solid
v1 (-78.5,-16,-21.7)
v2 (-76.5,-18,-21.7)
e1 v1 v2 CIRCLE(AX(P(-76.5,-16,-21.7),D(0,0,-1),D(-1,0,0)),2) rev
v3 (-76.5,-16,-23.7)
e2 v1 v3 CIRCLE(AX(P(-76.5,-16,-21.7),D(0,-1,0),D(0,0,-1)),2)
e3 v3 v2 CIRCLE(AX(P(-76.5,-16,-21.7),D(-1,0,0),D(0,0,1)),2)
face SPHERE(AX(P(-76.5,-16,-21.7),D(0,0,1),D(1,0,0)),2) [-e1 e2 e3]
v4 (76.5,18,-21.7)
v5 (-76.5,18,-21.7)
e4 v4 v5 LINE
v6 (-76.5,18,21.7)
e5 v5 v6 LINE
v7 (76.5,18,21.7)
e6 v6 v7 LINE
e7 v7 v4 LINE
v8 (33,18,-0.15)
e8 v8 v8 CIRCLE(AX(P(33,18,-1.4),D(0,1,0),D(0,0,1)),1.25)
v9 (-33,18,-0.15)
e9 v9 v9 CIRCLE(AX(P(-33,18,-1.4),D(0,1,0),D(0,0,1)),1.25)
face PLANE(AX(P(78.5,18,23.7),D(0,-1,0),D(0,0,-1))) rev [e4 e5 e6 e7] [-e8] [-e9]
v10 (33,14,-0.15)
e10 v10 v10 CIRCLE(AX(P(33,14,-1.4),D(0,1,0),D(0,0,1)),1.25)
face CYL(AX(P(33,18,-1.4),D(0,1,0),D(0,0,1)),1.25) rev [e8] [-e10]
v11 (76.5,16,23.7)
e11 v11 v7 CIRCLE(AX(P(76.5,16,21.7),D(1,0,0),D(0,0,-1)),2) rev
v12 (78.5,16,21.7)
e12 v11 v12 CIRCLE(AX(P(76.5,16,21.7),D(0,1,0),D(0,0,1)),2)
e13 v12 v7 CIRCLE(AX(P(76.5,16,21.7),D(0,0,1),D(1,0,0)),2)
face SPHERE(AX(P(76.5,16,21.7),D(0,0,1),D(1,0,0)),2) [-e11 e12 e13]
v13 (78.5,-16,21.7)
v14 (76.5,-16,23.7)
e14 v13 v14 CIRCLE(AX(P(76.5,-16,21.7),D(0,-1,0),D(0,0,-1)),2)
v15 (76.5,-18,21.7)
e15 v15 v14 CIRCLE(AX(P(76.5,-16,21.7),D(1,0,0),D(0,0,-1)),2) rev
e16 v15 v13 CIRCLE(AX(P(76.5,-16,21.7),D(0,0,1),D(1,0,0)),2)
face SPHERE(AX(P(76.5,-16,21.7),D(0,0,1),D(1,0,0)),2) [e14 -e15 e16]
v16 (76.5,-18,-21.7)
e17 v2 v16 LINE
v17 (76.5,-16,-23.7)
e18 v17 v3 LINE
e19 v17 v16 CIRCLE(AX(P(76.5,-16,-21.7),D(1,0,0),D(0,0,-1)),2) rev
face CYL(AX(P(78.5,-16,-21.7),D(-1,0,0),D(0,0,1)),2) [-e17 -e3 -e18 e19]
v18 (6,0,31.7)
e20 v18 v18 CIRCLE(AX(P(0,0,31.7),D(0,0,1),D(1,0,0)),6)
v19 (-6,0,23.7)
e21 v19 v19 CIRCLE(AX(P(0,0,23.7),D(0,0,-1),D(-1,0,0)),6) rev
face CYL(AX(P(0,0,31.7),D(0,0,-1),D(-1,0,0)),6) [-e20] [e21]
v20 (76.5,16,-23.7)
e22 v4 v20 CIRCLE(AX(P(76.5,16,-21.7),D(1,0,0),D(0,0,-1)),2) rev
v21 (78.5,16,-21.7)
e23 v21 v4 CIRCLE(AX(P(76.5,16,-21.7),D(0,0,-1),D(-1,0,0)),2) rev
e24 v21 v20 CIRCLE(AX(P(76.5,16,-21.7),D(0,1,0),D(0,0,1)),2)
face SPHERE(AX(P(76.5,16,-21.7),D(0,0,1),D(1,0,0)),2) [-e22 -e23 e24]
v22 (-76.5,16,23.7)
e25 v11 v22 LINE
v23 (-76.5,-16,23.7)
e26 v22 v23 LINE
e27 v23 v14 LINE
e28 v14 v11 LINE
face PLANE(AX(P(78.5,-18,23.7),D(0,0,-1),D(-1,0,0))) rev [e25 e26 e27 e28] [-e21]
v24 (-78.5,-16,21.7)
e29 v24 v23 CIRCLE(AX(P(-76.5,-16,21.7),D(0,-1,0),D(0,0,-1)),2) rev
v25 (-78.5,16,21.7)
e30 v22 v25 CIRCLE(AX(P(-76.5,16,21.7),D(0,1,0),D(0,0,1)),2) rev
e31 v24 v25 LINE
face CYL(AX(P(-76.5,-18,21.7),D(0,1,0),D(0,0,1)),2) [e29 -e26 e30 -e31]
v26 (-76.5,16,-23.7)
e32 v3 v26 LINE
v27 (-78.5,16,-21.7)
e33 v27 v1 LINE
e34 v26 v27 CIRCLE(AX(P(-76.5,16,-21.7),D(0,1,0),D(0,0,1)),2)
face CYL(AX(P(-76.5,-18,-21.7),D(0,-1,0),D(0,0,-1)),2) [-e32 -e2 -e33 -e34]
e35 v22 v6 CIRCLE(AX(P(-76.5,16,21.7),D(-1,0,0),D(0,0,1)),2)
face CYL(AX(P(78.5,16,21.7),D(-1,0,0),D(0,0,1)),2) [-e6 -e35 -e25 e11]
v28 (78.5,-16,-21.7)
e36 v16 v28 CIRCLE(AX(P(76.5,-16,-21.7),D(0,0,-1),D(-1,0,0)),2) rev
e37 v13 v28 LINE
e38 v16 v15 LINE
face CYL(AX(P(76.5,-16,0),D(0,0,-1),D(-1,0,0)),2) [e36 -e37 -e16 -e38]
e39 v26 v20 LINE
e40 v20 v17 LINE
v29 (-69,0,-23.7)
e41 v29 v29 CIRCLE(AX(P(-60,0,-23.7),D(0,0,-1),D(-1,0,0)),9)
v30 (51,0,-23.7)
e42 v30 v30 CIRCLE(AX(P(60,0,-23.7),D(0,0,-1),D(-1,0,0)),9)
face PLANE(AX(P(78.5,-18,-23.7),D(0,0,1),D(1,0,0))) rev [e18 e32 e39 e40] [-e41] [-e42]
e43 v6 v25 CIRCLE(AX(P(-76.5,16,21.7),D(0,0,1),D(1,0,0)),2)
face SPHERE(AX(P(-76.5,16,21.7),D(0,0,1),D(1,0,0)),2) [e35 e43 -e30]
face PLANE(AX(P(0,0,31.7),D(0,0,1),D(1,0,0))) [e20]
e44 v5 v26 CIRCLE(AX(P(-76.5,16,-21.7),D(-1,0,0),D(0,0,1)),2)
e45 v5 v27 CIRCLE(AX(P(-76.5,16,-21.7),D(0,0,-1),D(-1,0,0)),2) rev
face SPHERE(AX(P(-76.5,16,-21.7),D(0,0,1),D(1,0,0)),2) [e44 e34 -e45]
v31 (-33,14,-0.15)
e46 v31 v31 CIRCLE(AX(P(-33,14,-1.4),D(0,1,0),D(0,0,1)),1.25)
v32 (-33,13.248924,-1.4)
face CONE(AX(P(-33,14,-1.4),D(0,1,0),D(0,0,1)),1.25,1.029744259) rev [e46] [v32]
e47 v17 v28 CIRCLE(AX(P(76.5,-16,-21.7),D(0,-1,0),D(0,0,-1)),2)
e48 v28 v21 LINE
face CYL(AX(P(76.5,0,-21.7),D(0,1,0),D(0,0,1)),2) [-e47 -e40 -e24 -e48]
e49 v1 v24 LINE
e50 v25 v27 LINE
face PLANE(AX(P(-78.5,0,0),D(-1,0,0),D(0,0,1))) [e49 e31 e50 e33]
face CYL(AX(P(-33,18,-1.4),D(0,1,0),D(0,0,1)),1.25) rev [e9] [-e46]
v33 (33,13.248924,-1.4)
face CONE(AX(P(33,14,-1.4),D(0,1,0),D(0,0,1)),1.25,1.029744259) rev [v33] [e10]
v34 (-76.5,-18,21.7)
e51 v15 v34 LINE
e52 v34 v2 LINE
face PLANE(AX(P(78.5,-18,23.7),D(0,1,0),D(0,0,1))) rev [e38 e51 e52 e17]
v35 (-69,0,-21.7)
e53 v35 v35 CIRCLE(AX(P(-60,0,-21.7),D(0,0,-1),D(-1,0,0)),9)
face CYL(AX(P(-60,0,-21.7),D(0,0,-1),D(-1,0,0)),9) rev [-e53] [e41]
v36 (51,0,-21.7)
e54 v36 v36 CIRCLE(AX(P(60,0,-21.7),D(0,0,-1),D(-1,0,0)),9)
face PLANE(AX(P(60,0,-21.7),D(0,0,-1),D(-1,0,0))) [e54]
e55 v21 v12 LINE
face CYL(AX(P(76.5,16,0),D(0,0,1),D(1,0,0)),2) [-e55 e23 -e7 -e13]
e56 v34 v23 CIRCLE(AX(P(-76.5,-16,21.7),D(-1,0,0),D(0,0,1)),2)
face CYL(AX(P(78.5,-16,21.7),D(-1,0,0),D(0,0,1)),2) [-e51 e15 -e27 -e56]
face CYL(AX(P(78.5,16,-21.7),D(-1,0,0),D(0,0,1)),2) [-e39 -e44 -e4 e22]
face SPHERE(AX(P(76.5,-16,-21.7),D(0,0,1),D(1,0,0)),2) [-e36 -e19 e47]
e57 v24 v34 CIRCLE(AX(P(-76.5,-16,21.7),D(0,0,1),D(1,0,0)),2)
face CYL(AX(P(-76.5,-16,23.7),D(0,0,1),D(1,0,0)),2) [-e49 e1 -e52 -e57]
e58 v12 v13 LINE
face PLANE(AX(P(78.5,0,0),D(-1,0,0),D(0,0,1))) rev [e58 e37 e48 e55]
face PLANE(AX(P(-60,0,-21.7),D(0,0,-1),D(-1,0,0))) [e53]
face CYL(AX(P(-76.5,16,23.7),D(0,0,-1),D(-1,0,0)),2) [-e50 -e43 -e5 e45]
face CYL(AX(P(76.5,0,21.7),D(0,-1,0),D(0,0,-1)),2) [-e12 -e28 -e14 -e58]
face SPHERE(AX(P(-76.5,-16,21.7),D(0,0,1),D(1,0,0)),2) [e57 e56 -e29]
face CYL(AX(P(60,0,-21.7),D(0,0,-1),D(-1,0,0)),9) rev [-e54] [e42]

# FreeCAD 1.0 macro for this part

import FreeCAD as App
import Part
import Sketcher

V = App.Vector

doc = App.newDocument("Part")
params = doc.addObject("Spreadsheet::Sheet", "Params")
for row, (alias, value) in enumerate([
    ("sketch1_width", "36 mm"),
    ("sketch1_height", "47.4 mm"),
    ("pad1_length", "157 mm"),
    ("fillet_radius", "2 mm"),
    ("sketch2_diameter", "2.5 mm"),
    ("hole_diameter", "2.5 mm"),
    ("hole_depth", "4 mm"),
    ("sketch3_diameter", "18 mm"),
    ("pocket1_length", "2 mm"),
    ("sketch4_diameter", "12 mm"),
    ("pad2_length", "8 mm"),
], start=1):
    params.set(f"A{row}", alias)
    params.set(f"B{row}", "=" + value)
    params.setAlias(f"B{row}", alias)

body = doc.addObject("PartDesign::Body", "Body")

sketch1 = body.newObject("Sketcher::SketchObject", "Sketch")
sketch1.AttachmentSupport = (doc.getObject("YZ_Plane"), [""])
sketch1.MapMode = "FlatFace"
sketch1.addGeometry(Part.LineSegment(V(18, 24, 0), V(-18, 24, 0)), False)
sketch1.addGeometry(Part.LineSegment(V(-18, 24, 0), V(-18, -24, 0)), False)
sketch1.addGeometry(Part.LineSegment(V(-18, -24, 0), V(18, -24, 0)), False)
sketch1.addGeometry(Part.LineSegment(V(18, -24, 0), V(18, 24, 0)), False)
sketch1.addConstraint(Sketcher.Constraint("Coincident", 0, 2, 1, 1))
sketch1.addConstraint(Sketcher.Constraint("Coincident", 1, 2, 2, 1))
sketch1.addConstraint(Sketcher.Constraint("Coincident", 2, 2, 3, 1))
sketch1.addConstraint(Sketcher.Constraint("Coincident", 3, 2, 0, 1))
sketch1.addConstraint(Sketcher.Constraint("Horizontal", 0))
sketch1.addConstraint(Sketcher.Constraint("Vertical", 1))
sketch1.addConstraint(Sketcher.Constraint("Horizontal", 2))
sketch1.addConstraint(Sketcher.Constraint("Vertical", 3))
sketch1.addConstraint(Sketcher.Constraint("Symmetric", 0, 2, 2, 2, -1, 1))
sketch1.addConstraint(Sketcher.Constraint("DistanceX", 0, 2, 0, 1, 36.0))
sketch1.addConstraint(Sketcher.Constraint("DistanceY", 1, 2, 1, 1, 47.4))
sketch1.setExpression("Constraints[9]", "Params.sketch1_width")
sketch1.setExpression("Constraints[10]", "Params.sketch1_height")
pad1 = body.newObject("PartDesign::Pad", "Pad")
pad1.Profile = sketch1
pad1.setExpression("Length", "Params.pad1_length")
pad1.Midplane = True
doc.recompute()

fillet = body.newObject("PartDesign::Fillet", "Fillet")
fillet.Base = (pad1, ["Edge1"])
fillet.UseAllEdges = True
fillet.setExpression("Radius", "Params.fillet_radius")

sketch2 = body.newObject("Sketcher::SketchObject", "Sketch001")
sketch2.AttachmentSupport = (doc.getObject("XZ_Plane"), [""])
sketch2.MapMode = "FlatFace"
sketch2.AttachmentOffset = App.Placement(V(0, 0, -18), App.Rotation())
sketch2.addGeometry(Part.Circle(V(-33, -1.4, 0), V(0, 0, 1), 1.2), False)
sketch2.addGeometry(Part.Circle(V(33, -1.4, 0), V(0, 0, 1), 1.2), False)
sketch2.addConstraint(Sketcher.Constraint("Equal", 0, 1))
sketch2.addConstraint(Sketcher.Constraint("Symmetric", 0, 3, 1, 3, -2))
sketch2.addConstraint(Sketcher.Constraint("Diameter", 0, 2.5))
sketch2.addConstraint(Sketcher.Constraint("DistanceX", 0, 3, -1, 1, 33.0))
sketch2.addConstraint(Sketcher.Constraint("DistanceY", 0, 3, -1, 1, 1.4))
sketch2.setExpression("Constraints[2]", "Params.sketch2_diameter")
doc.recompute()
hole = body.newObject("PartDesign::Hole", "Hole")
hole.Profile = sketch2
hole.ThreadType = "None"
hole.setExpression("Diameter", "Params.hole_diameter")
hole.DepthType = "Dimension"
hole.setExpression("Depth", "Params.hole_depth")
hole.DrillPoint = "Angled"
hole.DrillPointAngle = 118
hole.Reversed = True

sketch3 = body.newObject("Sketcher::SketchObject", "Sketch002")
sketch3.AttachmentSupport = (doc.getObject("XY_Plane"), [""])
sketch3.MapMode = "FlatFace"
sketch3.AttachmentOffset = App.Placement(V(0, 0, -23.7), App.Rotation())
sketch3.addGeometry(Part.Circle(V(-60, 0, 0), V(0, 0, 1), 9), False)
sketch3.addGeometry(Part.Circle(V(60, 0, 0), V(0, 0, 1), 9), False)
sketch3.addConstraint(Sketcher.Constraint("Equal", 0, 1))
sketch3.addConstraint(Sketcher.Constraint("Symmetric", 0, 3, 1, 3, -1, 1))
sketch3.addConstraint(Sketcher.Constraint("PointOnObject", 0, 3, -1))
sketch3.addConstraint(Sketcher.Constraint("Diameter", 0, 18.0))
sketch3.addConstraint(Sketcher.Constraint("DistanceX", 0, 3, -1, 1, 60.0))
sketch3.setExpression("Constraints[3]", "Params.sketch3_diameter")
pocket1 = body.newObject("PartDesign::Pocket", "Pocket")
pocket1.Profile = sketch3
pocket1.setExpression("Length", "Params.pocket1_length")
pocket1.Reversed = True

sketch4 = body.newObject("Sketcher::SketchObject", "Sketch003")
sketch4.AttachmentSupport = (doc.getObject("XY_Plane"), [""])
sketch4.MapMode = "FlatFace"
sketch4.AttachmentOffset = App.Placement(V(0, 0, 23.7), App.Rotation())
sketch4.addGeometry(Part.Circle(V(0, 0, 0), V(0, 0, 1), 6), False)
sketch4.addConstraint(Sketcher.Constraint("Coincident", 0, 3, -1, 1))
sketch4.addConstraint(Sketcher.Constraint("Diameter", 0, 12.0))
sketch4.setExpression("Constraints[1]", "Params.sketch4_diameter")
pad2 = body.newObject("PartDesign::Pad", "Pad001")
pad2.Profile = sketch4
pad2.setExpression("Length", "Params.pad2_length")

doc.recompute()
